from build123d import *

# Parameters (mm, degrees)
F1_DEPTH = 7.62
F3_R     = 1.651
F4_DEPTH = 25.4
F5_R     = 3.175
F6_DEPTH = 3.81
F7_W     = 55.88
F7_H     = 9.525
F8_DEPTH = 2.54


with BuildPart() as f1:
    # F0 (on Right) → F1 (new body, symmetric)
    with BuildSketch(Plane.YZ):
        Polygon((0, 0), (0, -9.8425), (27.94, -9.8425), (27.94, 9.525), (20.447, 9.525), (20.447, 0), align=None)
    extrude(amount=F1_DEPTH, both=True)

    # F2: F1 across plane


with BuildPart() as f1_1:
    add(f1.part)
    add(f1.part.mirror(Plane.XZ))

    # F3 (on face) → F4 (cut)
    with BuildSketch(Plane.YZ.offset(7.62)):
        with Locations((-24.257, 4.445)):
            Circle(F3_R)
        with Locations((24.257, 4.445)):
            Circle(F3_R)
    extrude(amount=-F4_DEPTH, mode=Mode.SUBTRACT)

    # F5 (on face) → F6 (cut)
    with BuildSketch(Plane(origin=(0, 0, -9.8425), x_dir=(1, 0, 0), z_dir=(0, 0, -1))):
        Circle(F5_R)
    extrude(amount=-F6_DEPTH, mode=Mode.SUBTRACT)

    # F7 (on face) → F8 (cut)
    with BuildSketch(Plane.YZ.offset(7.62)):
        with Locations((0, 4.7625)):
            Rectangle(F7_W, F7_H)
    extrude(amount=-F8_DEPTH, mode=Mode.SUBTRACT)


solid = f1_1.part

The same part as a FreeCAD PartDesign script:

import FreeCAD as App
import Part
import Sketcher

V = App.Vector
Q = App.Units.Quantity

doc = App.newDocument("Part")
params = doc.addObject("Spreadsheet::Sheet", "Params")
for row, (alias, value) in enumerate([
    ("sketch1_width", "1.1 in"),
    ("sketch1_width2", "0.295 in"),
    ("sketch1_height", "0.375 in"),
    ("pad1_length", "0.6 in"),
    ("sketch2_diameter", "0.13 in"),
    ("pocket1_length", "1 in"),
    ("sketch3_diameter", "0.25 in"),
    ("pocket2_length", "0.15 in"),
    ("sketch4_width", "2.2 in"),
    ("sketch4_height", "0.375 in"),
    ("pocket3_length", "0.1 in"),
], start=1):
    params.set(f"A{row}", alias)
    params.set(f"B{row}", "=" + value)
    params.setAlias(f"B{row}", alias)

body = doc.addObject("PartDesign::Body", "Body")

sketch1 = doc.addObject("Sketcher::SketchObject", "Sketch")
body.addObject(sketch1)
sketch1.AttachmentSupport = (doc.YZ_Plane, [""])
sketch1.MapMode = "FlatFace"
sketch1.addGeometry([
    Part.LineSegment(V(0, 0, 0), V(0, -9.8425, 0)),
    Part.LineSegment(V(0, -9.8425, 0), V(27.94, -9.8425, 0)),
    Part.LineSegment(V(27.94, -9.8425, 0), V(27.94, 9.525, 0)),
    Part.LineSegment(V(27.94, 9.525, 0), V(20.447, 9.525, 0)),
    Part.LineSegment(V(20.447, 9.525, 0), V(20.447, 0, 0)),
    Part.LineSegment(V(20.447, 0, 0), V(0, 0, 0)),
], False)
sketch1.addConstraint([
    Sketcher.Constraint("Coincident", 0, 2, 1, 1),
    Sketcher.Constraint("Coincident", 1, 2, 2, 1),
    Sketcher.Constraint("Coincident", 2, 2, 3, 1),
    Sketcher.Constraint("Coincident", 3, 2, 4, 1),
    Sketcher.Constraint("Coincident", 4, 2, 5, 1),
    Sketcher.Constraint("Coincident", 5, 2, 0, 1),
    Sketcher.Constraint("Vertical", 0),
    Sketcher.Constraint("Horizontal", 1),
    Sketcher.Constraint("Vertical", 2),
    Sketcher.Constraint("Horizontal", 3),
    Sketcher.Constraint("Vertical", 4),
    Sketcher.Constraint("Horizontal", 5),
    Sketcher.Constraint("Coincident", 5, 2, -1, 1),
    Sketcher.Constraint("DistanceX", 1, 1, 1, 2, Q("1.1 in")),
    Sketcher.Constraint("DistanceX", 3, 2, 3, 1, Q("0.295 in")),
    Sketcher.Constraint("DistanceY", 4, 2, 4, 1, Q("0.375 in")),
    Sketcher.Constraint("DistanceY", 0, 2, 0, 1, Q("0.3875 in")),
])
sketch1.setExpression("Constraints[13]", "Params.sketch1_width")
sketch1.setExpression("Constraints[14]", "Params.sketch1_width2")
sketch1.setExpression("Constraints[15]", "Params.sketch1_height")
pad1 = doc.addObject("PartDesign::Pad", "Pad")
body.addObject(pad1)
pad1.Profile = sketch1
pad1.setExpression("Length", "Params.pad1_length")
pad1.Midplane = True
body2 = doc.addObject("PartDesign::Body", "Body001")
doc.recompute()

body2.BaseFeature = body
doc.recompute()

mirroring = doc.addObject("Part::Mirroring", "Mirroring")
mirroring.Source = body
mirroring.Base = V(0, 0, 0)
mirroring.Normal = V(0, -1, 0)
body3 = doc.addObject("PartDesign::Body", "Body002")
body3.BaseFeature = mirroring
boolean = doc.addObject("PartDesign::Boolean", "Boolean")
body2.addObject(boolean)
boolean.Type = "Fuse"
boolean.addObjects([body3])
doc.recompute()

sketch2 = doc.addObject("Sketcher::SketchObject", "Sketch001")
body2.addObject(sketch2)
sketch2.AttachmentSupport = (doc.getObject("YZ_Plane001"), [""])
sketch2.MapMode = "FlatFace"
sketch2.AttachmentOffset = App.Placement(V(0, 0, 0.3 * 25.4), App.Rotation())
sketch2.addGeometry([
    Part.Circle(V(-24.257, 4.445, 0), V(0, 0, 1), 1.651),
    Part.Circle(V(24.257, 4.445, 0), V(0, 0, 1), 1.651),
], False)
sketch2.addConstraint([
    Sketcher.Constraint("Equal", 0, 1),
    Sketcher.Constraint("Symmetric", 0, 3, 1, 3, -2),
    Sketcher.Constraint("Diameter", 0, Q("0.13 in")),
    Sketcher.Constraint("DistanceX", 0, 3, 1, 3, Q("1.91 in")),
    Sketcher.Constraint("DistanceY", -1, 1, 0, 3, Q("0.175 in")),
])
sketch2.setExpression("Constraints[2]", "Params.sketch2_diameter")
pocket1 = doc.addObject("PartDesign::Pocket", "Pocket")
body2.addObject(pocket1)
pocket1.Profile = sketch2
pocket1.setExpression("Length", "Params.pocket1_length")

sketch3 = doc.addObject("Sketcher::SketchObject", "Sketch002")
body2.addObject(sketch3)
sketch3.AttachmentSupport = (doc.getObject("XY_Plane001"), [""])
sketch3.MapMode = "FlatFace"
sketch3.AttachmentOffset = App.Placement(V(0, 0, -0.3875 * 25.4), App.Rotation())
sketch3.addGeometry(Part.Circle(V(0, 0, 0), V(0, 0, 1), 3.175), False)
sketch3.addConstraint([
    Sketcher.Constraint("Coincident", 0, 3, -1, 1),
    Sketcher.Constraint("Diameter", 0, Q("0.25 in")),
])
sketch3.setExpression("Constraints[1]", "Params.sketch3_diameter")
pocket2 = doc.addObject("PartDesign::Pocket", "Pocket001")
body2.addObject(pocket2)
pocket2.Profile = sketch3
pocket2.setExpression("Length", "Params.pocket2_length")
pocket2.Reversed = True

sketch4 = doc.addObject("Sketcher::SketchObject", "Sketch003")
body2.addObject(sketch4)
sketch4.AttachmentSupport = (doc.getObject("YZ_Plane001"), [""])
sketch4.MapMode = "FlatFace"
sketch4.AttachmentOffset = App.Placement(V(0, 0, 0.3 * 25.4), App.Rotation())
sketch4.addGeometry([
    Part.LineSegment(V(-27.94, 9.525, 0), V(-27.94, 0, 0)),
    Part.LineSegment(V(-27.94, 0, 0), V(27.94, 0, 0)),
    Part.LineSegment(V(27.94, 0, 0), V(27.94, 9.525, 0)),
    Part.LineSegment(V(27.94, 9.525, 0), V(-27.94, 9.525, 0)),
], False)
sketch4.addConstraint([
    Sketcher.Constraint("Coincident", 0, 2, 1, 1),
    Sketcher.Constraint("Coincident", 1, 2, 2, 1),
    Sketcher.Constraint("Coincident", 2, 2, 3, 1),
    Sketcher.Constraint("Coincident", 3, 2, 0, 1),
    Sketcher.Constraint("Vertical", 0),
    Sketcher.Constraint("Horizontal", 1),
    Sketcher.Constraint("Vertical", 2),
    Sketcher.Constraint("Horizontal", 3),
    Sketcher.Constraint("Symmetric", 0, 2, 1, 2, -1, 1),
    Sketcher.Constraint("DistanceX", 1, 1, 1, 2, Q("2.2 in")),
    Sketcher.Constraint("DistanceY", 0, 2, 0, 1, Q("0.375 in")),
])
sketch4.setExpression("Constraints[9]", "Params.sketch4_width")
sketch4.setExpression("Constraints[10]", "Params.sketch4_height")
pocket3 = doc.addObject("PartDesign::Pocket", "Pocket002")
body2.addObject(pocket3)
pocket3.Profile = sketch4
pocket3.setExpression("Length", "Params.pocket3_length")
mirroring.Visibility = False

doc.recompute()
